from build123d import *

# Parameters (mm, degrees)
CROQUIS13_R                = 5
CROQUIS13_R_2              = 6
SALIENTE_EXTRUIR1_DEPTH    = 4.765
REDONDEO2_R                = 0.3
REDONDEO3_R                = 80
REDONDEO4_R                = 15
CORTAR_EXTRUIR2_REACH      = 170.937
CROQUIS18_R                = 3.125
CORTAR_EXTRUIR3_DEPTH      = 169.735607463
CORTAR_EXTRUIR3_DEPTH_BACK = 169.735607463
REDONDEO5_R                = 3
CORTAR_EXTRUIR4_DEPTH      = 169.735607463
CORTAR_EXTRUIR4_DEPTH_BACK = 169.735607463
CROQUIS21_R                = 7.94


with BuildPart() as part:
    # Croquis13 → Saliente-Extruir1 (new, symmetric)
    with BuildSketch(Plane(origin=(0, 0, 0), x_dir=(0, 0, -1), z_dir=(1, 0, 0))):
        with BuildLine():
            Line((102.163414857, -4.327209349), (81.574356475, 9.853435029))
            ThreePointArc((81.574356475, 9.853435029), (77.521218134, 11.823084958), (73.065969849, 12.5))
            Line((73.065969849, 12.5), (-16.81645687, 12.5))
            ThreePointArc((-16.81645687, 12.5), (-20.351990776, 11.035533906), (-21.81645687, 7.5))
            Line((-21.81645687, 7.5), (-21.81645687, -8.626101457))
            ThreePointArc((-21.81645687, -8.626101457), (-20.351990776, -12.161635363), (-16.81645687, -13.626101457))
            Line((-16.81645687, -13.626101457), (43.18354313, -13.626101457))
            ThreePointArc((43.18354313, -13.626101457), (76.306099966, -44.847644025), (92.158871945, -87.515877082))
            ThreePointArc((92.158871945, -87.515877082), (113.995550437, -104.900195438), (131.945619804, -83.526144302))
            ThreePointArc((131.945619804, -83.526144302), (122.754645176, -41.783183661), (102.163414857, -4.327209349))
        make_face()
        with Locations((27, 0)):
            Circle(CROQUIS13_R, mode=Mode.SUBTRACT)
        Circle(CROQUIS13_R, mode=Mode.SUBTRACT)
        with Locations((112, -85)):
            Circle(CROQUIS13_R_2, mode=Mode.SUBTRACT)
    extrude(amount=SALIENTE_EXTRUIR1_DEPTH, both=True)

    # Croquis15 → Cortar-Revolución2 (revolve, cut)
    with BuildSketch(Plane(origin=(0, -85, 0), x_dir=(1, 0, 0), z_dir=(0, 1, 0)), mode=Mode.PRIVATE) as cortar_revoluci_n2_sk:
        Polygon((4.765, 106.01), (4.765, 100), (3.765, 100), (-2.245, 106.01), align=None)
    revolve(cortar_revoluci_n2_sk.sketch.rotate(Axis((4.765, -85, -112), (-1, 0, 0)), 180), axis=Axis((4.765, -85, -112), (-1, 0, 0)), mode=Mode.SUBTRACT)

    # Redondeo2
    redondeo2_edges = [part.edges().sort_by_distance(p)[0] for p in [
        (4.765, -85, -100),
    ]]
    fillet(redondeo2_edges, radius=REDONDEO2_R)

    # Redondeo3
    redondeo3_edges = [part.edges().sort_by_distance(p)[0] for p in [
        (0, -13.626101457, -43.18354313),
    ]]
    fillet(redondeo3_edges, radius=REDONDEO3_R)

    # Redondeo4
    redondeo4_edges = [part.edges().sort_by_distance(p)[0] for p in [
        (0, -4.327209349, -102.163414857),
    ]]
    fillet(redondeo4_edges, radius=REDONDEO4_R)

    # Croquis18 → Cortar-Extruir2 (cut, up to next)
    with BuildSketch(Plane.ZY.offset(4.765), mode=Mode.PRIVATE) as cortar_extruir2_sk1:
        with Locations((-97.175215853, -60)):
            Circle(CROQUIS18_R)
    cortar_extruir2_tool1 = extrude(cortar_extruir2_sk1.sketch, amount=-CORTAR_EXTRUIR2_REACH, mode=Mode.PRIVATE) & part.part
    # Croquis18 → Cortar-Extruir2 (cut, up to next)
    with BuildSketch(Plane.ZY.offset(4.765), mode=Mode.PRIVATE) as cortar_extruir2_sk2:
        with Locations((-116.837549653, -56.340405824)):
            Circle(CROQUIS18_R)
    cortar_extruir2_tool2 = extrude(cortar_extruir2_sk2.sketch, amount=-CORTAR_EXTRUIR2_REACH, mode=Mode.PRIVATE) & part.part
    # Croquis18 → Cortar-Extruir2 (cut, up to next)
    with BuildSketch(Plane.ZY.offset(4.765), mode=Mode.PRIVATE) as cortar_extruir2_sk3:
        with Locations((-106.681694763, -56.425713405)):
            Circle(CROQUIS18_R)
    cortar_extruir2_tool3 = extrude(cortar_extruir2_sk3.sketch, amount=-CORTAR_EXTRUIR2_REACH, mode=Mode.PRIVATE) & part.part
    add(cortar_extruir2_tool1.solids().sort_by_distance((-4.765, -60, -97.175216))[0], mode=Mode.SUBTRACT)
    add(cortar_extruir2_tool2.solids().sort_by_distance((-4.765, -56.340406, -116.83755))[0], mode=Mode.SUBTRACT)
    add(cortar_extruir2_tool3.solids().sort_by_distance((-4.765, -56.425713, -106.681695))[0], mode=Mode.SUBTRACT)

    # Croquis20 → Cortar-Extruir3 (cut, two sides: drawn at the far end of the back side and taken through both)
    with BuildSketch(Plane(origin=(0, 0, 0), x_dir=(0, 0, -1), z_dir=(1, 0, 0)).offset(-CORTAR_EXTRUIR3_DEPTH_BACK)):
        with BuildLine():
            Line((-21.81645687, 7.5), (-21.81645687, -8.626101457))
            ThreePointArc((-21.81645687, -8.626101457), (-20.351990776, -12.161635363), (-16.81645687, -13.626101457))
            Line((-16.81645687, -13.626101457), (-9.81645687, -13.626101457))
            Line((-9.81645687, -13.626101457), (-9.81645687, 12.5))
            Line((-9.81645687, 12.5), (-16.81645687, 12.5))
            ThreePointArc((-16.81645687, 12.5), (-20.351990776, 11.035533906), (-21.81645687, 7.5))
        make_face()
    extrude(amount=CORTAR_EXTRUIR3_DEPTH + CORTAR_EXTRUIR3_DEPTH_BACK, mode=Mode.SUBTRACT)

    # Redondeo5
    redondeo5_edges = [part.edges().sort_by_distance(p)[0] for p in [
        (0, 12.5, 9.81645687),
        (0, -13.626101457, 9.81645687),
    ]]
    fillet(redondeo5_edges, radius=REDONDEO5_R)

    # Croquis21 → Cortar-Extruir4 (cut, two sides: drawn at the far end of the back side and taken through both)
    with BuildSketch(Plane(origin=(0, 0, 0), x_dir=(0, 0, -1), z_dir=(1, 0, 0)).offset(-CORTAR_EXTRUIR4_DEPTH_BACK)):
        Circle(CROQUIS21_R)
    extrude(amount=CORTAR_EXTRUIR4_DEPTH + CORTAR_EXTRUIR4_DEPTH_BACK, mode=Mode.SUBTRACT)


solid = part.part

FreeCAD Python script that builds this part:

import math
import FreeCAD as App
import Part
import Sketcher

V = App.Vector
Q = App.Units.Quantity


def edges_at(feature, points):
    """Names of the edges that pass closest to the given points."""
    edges = feature.Shape.Edges
    near = lambda p: min(range(len(edges)), key=lambda i: edges[i].distToShape(Part.Vertex(*p))[0])
    return sorted({f"Edge{near(p) + 1}" for p in points})

doc = App.newDocument("Part")
params = doc.addObject("Spreadsheet::Sheet", "Params")
for row, (alias, value) in enumerate([
    ("sketch1_diameter", "12 mm"),
    ("sketch1_diameter2", "10 mm"),
    ("sketch1_radius", "15 mm"),
    ("sketch1_radius2", "100 mm"),
    ("sketch1_radius3", "20 mm"),
    ("pad1_length", "9.53 mm"),
    ("sketch2_width", "1 mm"),
    ("sketch2_width2", "7.01 mm"),
    ("groove_angle", "360 deg"),
    ("fillet_radius", "0.3 mm"),
    ("fillet2_radius", "80 mm"),
    ("fillet3_radius", "15 mm"),
    ("sketch3_diameter", "6.25 mm"),
    ("sketch4_diameter", "6.25 mm"),
    ("sketch5_diameter", "6.25 mm"),
    ("sketch6_radius", "5 mm"),
    ("sketch6_height", "7 mm"),
    ("fillet4_radius", "3 mm"),
    ("sketch7_diameter", "15.88 mm"),
], start=1):
    params.set(f"A{row}", alias)
    params.set(f"B{row}", "=" + value)
    params.setAlias(f"B{row}", alias)

body = doc.addObject("PartDesign::Body", "Body")

sketch1 = doc.addObject("Sketcher::SketchObject", "Sketch")
body.addObject(sketch1)
sketch1.AttachmentSupport = (doc.YZ_Plane, [""])
sketch1.MapMode = "FlatFace"
sketch1.addGeometry(Part.LineSegment(V(-4, -102, 0), V(10, -82, 0)), False)
sketch1.addGeometry(Part.ArcOfCircle(Part.Circle(V(-3, -73, 0), V(0, 0, 1), 15), math.radians(-35), math.radians(0)), False)
sketch1.addGeometry(Part.LineSegment(V(12, -73, 0), V(12, 17, 0)), False)
sketch1.addGeometry(Part.ArcOfCircle(Part.Circle(V(8, 17, 0), V(0, 0, 1), 5), math.radians(0), math.radians(90)), False)
sketch1.addGeometry(Part.LineSegment(V(8, 22, 0), V(-9, 22, 0)), False)
sketch1.addGeometry(Part.ArcOfCircle(Part.Circle(V(-9, 17, 0), V(0, 0, 1), 5), math.radians(90), math.radians(180)), False)
sketch1.addGeometry(Part.LineSegment(V(-14, 17, 0), V(-14, -43, 0)), False)
sketch1.addGeometry(Part.ArcOfCircle(Part.Circle(V(-100, 7, 0), V(0, 0, 1), 100), math.radians(-83), math.radians(-30)), False)
sketch1.addGeometry(Part.ArcOfCircle(Part.Circle(V(-85, -112, 0), V(0, 0, 1), 20), math.radians(97), math.radians(274)), False)
sketch1.addGeometry(Part.ArcOfCircle(Part.Circle(V(-95, 18, 0), V(0, 0, 1), 150), math.radians(-86), math.radians(-53)), False)
sketch1.addGeometry(Part.Circle(V(-85, -112, 0), V(0, 0, 1), 6), False)
sketch1.addGeometry(Part.Circle(V(0, 0, 0), V(0, 0, 1), 5), False)
sketch1.addGeometry(Part.Circle(V(0, -27, 0), V(0, 0, 1), 5), False)
sketch1.addConstraint(Sketcher.Constraint("Tangent", 0, 2, 1, 1))
sketch1.addConstraint(Sketcher.Constraint("Tangent", 1, 2, 2, 1))
sketch1.addConstraint(Sketcher.Constraint("Tangent", 2, 2, 3, 1))
sketch1.addConstraint(Sketcher.Constraint("Tangent", 3, 2, 4, 1))
sketch1.addConstraint(Sketcher.Constraint("Tangent", 4, 2, 5, 1))
sketch1.addConstraint(Sketcher.Constraint("Tangent", 5, 2, 6, 1))
sketch1.addConstraint(Sketcher.Constraint("Coincident", 6, 2, 7, 2))
sketch1.addConstraint(Sketcher.Constraint("Tangent", 7, 1, 8, 1))
sketch1.addConstraint(Sketcher.Constraint("Tangent", 8, 2, 9, 1))
sketch1.addConstraint(Sketcher.Constraint("Coincident", 9, 2, 0, 1))
sketch1.addConstraint(Sketcher.Constraint("Vertical", 2))
sketch1.addConstraint(Sketcher.Constraint("Horizontal", 4))
sketch1.addConstraint(Sketcher.Constraint("Vertical", 6))
sketch1.addConstraint(Sketcher.Constraint("Coincident", 11, 3, -1, 1))
sketch1.addConstraint(Sketcher.Constraint("Coincident", 10, 3, 8, 3))
sketch1.addConstraint(Sketcher.Constraint("Equal", 3, 5))
sketch1.addConstraint(Sketcher.Constraint("Equal", 5, 11))
sketch1.addConstraint(Sketcher.Constraint("Equal", 11, 12))
sketch1.addConstraint(Sketcher.Constraint("PointOnObject", 12, 3, -2))
sketch1.addConstraint(Sketcher.Constraint("Diameter", 10, Q("12 mm")))
sketch1.addConstraint(Sketcher.Constraint("Diameter", 11, Q("10 mm")))
sketch1.addConstraint(Sketcher.Constraint("Radius", 1, Q("15 mm")))
sketch1.addConstraint(Sketcher.Constraint("Radius", 7, Q("100 mm")))
sketch1.addConstraint(Sketcher.Constraint("Radius", 8, Q("20 mm")))
sketch1.addConstraint(Sketcher.Constraint("Radius", 9, Q("150 mm")))
sketch1.addConstraint(Sketcher.Constraint("DistanceY", 6, 2, 6, 1, Q("60 mm")))
sketch1.addConstraint(Sketcher.Constraint("Distance", 0, Q("25 mm")))
sketch1.addConstraint(Sketcher.Constraint("DistanceX", 8, 3, -1, 1, Q("85 mm")))
sketch1.addConstraint(Sketcher.Constraint("DistanceY", 8, 3, -1, 1, Q("112 mm")))
sketch1.addConstraint(Sketcher.Constraint("DistanceY", 12, 3, -1, 1, Q("27 mm")))
sketch1.addConstraint(Sketcher.Constraint("DistanceX", 1, 3, -1, 1, Q("2.5 mm")))
sketch1.addConstraint(Sketcher.Constraint("DistanceX", 4, 2, 4, 1, Q("16.126101 mm")))
sketch1.addConstraint(Sketcher.Constraint("DistanceX", 7, 3, 9, 3, Q("5.5152 mm")))
sketch1.addConstraint(Sketcher.Constraint("DistanceY", 1, 3, 9, 3, Q("90.712499 mm")))
sketch1.addConstraint(Sketcher.Constraint("DistanceY", 2, 1, 2, 2, Q("89.882427 mm")))
sketch1.setExpression("Constraints[19]", "Params.sketch1_diameter")
sketch1.setExpression("Constraints[20]", "Params.sketch1_diameter2")
sketch1.setExpression("Constraints[21]", "Params.sketch1_radius")
sketch1.setExpression("Constraints[22]", "Params.sketch1_radius2")
sketch1.setExpression("Constraints[23]", "Params.sketch1_radius3")
pad1 = doc.addObject("PartDesign::Pad", "Pad")
body.addObject(pad1)
pad1.Profile = sketch1
pad1.setExpression("Length", "Params.pad1_length")
pad1.Midplane = True

sketch2 = doc.addObject("Sketcher::SketchObject", "Sketch001")
body.addObject(sketch2)
sketch2.AttachmentSupport = (doc.XZ_Plane, [""])
sketch2.MapMode = "FlatFace"
sketch2.AttachmentOffset = App.Placement(V(0, 0, 85), App.Rotation())
sketch2.addGeometry(Part.LineSegment(V(4.8, -100, 0), V(4.8, -106, 0)), False)
sketch2.addGeometry(Part.LineSegment(V(4.8, -106, 0), V(-2.2, -106, 0)), False)
sketch2.addGeometry(Part.LineSegment(V(-2.2, -106, 0), V(3.8, -100, 0)), False)
sketch2.addGeometry(Part.LineSegment(V(3.8, -100, 0), V(4.8, -100, 0)), False)
sketch2.addGeometry(Part.LineSegment(V(4.8, -112, 0), V(-2.2, -112, 0)), True)
sketch2.addConstraint(Sketcher.Constraint("Coincident", 0, 2, 1, 1))
sketch2.addConstraint(Sketcher.Constraint("Coincident", 1, 2, 2, 1))
sketch2.addConstraint(Sketcher.Constraint("Coincident", 2, 2, 3, 1))
sketch2.addConstraint(Sketcher.Constraint("Coincident", 3, 2, 0, 1))
sketch2.addConstraint(Sketcher.Constraint("Vertical", 0))
sketch2.addConstraint(Sketcher.Constraint("Horizontal", 1))
sketch2.addConstraint(Sketcher.Constraint("Horizontal", 3))
sketch2.addConstraint(Sketcher.Constraint("Horizontal", 4))
sketch2.addConstraint(Sketcher.Constraint("Vertical", 3, 2, 4, 1))
sketch2.addConstraint(Sketcher.Constraint("Vertical", 1, 2, 4, 2))
sketch2.addConstraint(Sketcher.Constraint("DistanceX", 3, 1, 3, 2, Q("1 mm")))
sketch2.addConstraint(Sketcher.Constraint("Angle", 2, Q("45 deg")))
sketch2.addConstraint(Sketcher.Constraint("DistanceY", 2, 2, -1, 1, Q("100 mm")))
sketch2.addConstraint(Sketcher.Constraint("DistanceY", 4, 1, -1, 1, Q("112 mm")))
sketch2.addConstraint(Sketcher.Constraint("DistanceX", 1, 2, 1, 1, Q("7.01 mm")))
sketch2.addConstraint(Sketcher.Constraint("DistanceX", -1, 1, 0, 2, Q("4.765 mm")))
sketch2.setExpression("Constraints[10]", "Params.sketch2_width")
sketch2.setExpression("Constraints[14]", "Params.sketch2_width2")
groove = doc.addObject("PartDesign::Groove", "Groove")
body.addObject(groove)
groove.Profile = sketch2
groove.ReferenceAxis = (sketch2, ["Axis0"])
groove.setExpression("Angle", "Params.groove_angle")
doc.recompute()

fillet = doc.addObject("PartDesign::Fillet", "Fillet")
body.addObject(fillet)
fillet.Base = (groove, edges_at(groove, [(4.765, -85, -100)]))
fillet.setExpression("Radius", "Params.fillet_radius")
doc.recompute()

fillet2 = doc.addObject("PartDesign::Fillet", "Fillet001")
body.addObject(fillet2)
fillet2.Base = (fillet, edges_at(fillet, [(0, -13.626, -43.184)]))
fillet2.setExpression("Radius", "Params.fillet2_radius")
doc.recompute()

fillet3 = doc.addObject("PartDesign::Fillet", "Fillet002")
body.addObject(fillet3)
fillet3.Base = (fillet2, edges_at(fillet2, [(0, -4.327, -102.163)]))
fillet3.setExpression("Radius", "Params.fillet3_radius")

sketch3 = doc.addObject("Sketcher::SketchObject", "Sketch002")
body.addObject(sketch3)
sketch3.AttachmentSupport = (doc.YZ_Plane, [""])
sketch3.MapMode = "FlatFace"
sketch3.AttachmentOffset = App.Placement(V(0, 0, -4.765), App.Rotation())
sketch3.addGeometry(Part.Circle(V(-60, -97.2, 0), V(0, 0, 1), 3.1), False)
sketch3.addConstraint(Sketcher.Constraint("Diameter", 0, Q("6.25 mm")))
sketch3.addConstraint(Sketcher.Constraint("DistanceX", 0, 3, -1, 1, Q("60 mm")))
sketch3.addConstraint(Sketcher.Constraint("DistanceY", 0, 3, -1, 1, Q("97.175216 mm")))
sketch3.setExpression("Constraints[0]", "Params.sketch3_diameter")
pocket1 = doc.addObject("PartDesign::Pocket", "Pocket")
body.addObject(pocket1)
pocket1.Profile = sketch3
pocket1.Type = "UpToFirst"
pocket1.Reversed = True

sketch4 = doc.addObject("Sketcher::SketchObject", "Sketch003")
body.addObject(sketch4)
sketch4.AttachmentSupport = (doc.YZ_Plane, [""])
sketch4.MapMode = "FlatFace"
sketch4.AttachmentOffset = App.Placement(V(0, 0, -4.765), App.Rotation())
sketch4.addGeometry(Part.Circle(V(-56.3, -116.8, 0), V(0, 0, 1), 3.1), False)
sketch4.addConstraint(Sketcher.Constraint("Diameter", 0, Q("6.25 mm")))
sketch4.addConstraint(Sketcher.Constraint("DistanceY", 0, 3, -1, 1, Q("116.83755 mm")))
sketch4.addConstraint(Sketcher.Constraint("DistanceX", 0, 3, -1, 1, Q("56.340406 mm")))
sketch4.setExpression("Constraints[0]", "Params.sketch4_diameter")
pocket2 = doc.addObject("PartDesign::Pocket", "Pocket001")
body.addObject(pocket2)
pocket2.Profile = sketch4
pocket2.Type = "UpToFirst"
pocket2.Reversed = True

sketch5 = doc.addObject("Sketcher::SketchObject", "Sketch004")
body.addObject(sketch5)
sketch5.AttachmentSupport = (doc.YZ_Plane, [""])
sketch5.MapMode = "FlatFace"
sketch5.AttachmentOffset = App.Placement(V(0, 0, -4.765), App.Rotation())
sketch5.addGeometry(Part.Circle(V(-56.4, -106.7, 0), V(0, 0, 1), 3.1), False)
sketch5.addConstraint(Sketcher.Constraint("Diameter", 0, Q("6.25 mm")))
sketch5.addConstraint(Sketcher.Constraint("DistanceX", 0, 3, -1, 1, Q("56.425713 mm")))
sketch5.addConstraint(Sketcher.Constraint("DistanceY", 0, 3, -1, 1, Q("106.681695 mm")))
sketch5.setExpression("Constraints[0]", "Params.sketch5_diameter")
pocket3 = doc.addObject("PartDesign::Pocket", "Pocket002")
body.addObject(pocket3)
pocket3.Profile = sketch5
pocket3.Type = "UpToFirst"
pocket3.Reversed = True

sketch6 = doc.addObject("Sketcher::SketchObject", "Sketch005")
body.addObject(sketch6)
sketch6.AttachmentSupport = (doc.YZ_Plane, [""])
sketch6.MapMode = "FlatFace"
sketch6.addGeometry(Part.LineSegment(V(8, 22, 0), V(-9, 22, 0)), False)
sketch6.addGeometry(Part.ArcOfCircle(Part.Circle(V(-9, 17, 0), V(0, 0, 1), 5), math.radians(90), math.radians(180)), False)
sketch6.addGeometry(Part.LineSegment(V(-14, 17, 0), V(-14, 10, 0)), False)
sketch6.addGeometry(Part.LineSegment(V(-14, 10, 0), V(12, 10, 0)), False)
sketch6.addGeometry(Part.LineSegment(V(12, 10, 0), V(12, 17, 0)), False)
sketch6.addGeometry(Part.ArcOfCircle(Part.Circle(V(8, 17, 0), V(0, 0, 1), 5), math.radians(0), math.radians(90)), False)
sketch6.addConstraint(Sketcher.Constraint("Tangent", 0, 2, 1, 1))
sketch6.addConstraint(Sketcher.Constraint("Tangent", 1, 2, 2, 1))
sketch6.addConstraint(Sketcher.Constraint("Coincident", 2, 2, 3, 1))
sketch6.addConstraint(Sketcher.Constraint("Coincident", 3, 2, 4, 1))
sketch6.addConstraint(Sketcher.Constraint("Tangent", 4, 2, 5, 1))
sketch6.addConstraint(Sketcher.Constraint("Tangent", 5, 2, 0, 1))
sketch6.addConstraint(Sketcher.Constraint("Horizontal", 0))
sketch6.addConstraint(Sketcher.Constraint("Vertical", 2))
sketch6.addConstraint(Sketcher.Constraint("Horizontal", 3))
sketch6.addConstraint(Sketcher.Constraint("Vertical", 4))
sketch6.addConstraint(Sketcher.Constraint("Equal", 1, 5))
sketch6.addConstraint(Sketcher.Constraint("Radius", 1, Q("5 mm")))
sketch6.addConstraint(Sketcher.Constraint("DistanceY", 2, 2, 2, 1, Q("7 mm")))
sketch6.addConstraint(Sketcher.Constraint("DistanceX", -1, 1, 5, 3, Q("7.5 mm")))
sketch6.addConstraint(Sketcher.Constraint("DistanceX", 0, 2, 0, 1, Q("16.126101 mm")))
sketch6.addConstraint(Sketcher.Constraint("DistanceY", -1, 1, 1, 3, Q("16.816457 mm")))
sketch6.setExpression("Constraints[11]", "Params.sketch6_radius")
sketch6.setExpression("Constraints[12]", "Params.sketch6_height")
pocket4 = doc.addObject("PartDesign::Pocket", "Pocket003")
body.addObject(pocket4)
pocket4.Profile = sketch6
pocket4.Type = "ThroughAll"
pocket4.Midplane = True
doc.recompute()

fillet4 = doc.addObject("PartDesign::Fillet", "Fillet003")
body.addObject(fillet4)
fillet4.Base = (pocket4, edges_at(pocket4, [(0, 12.5, 9.816), (0, -13.626, 9.816)]))
fillet4.setExpression("Radius", "Params.fillet4_radius")

sketch7 = doc.addObject("Sketcher::SketchObject", "Sketch006")
body.addObject(sketch7)
sketch7.AttachmentSupport = (doc.YZ_Plane, [""])
sketch7.MapMode = "FlatFace"
sketch7.addGeometry(Part.Circle(V(0, 0, 0), V(0, 0, 1), 8), False)
sketch7.addConstraint(Sketcher.Constraint("Coincident", 0, 3, -1, 1))
sketch7.addConstraint(Sketcher.Constraint("Diameter", 0, Q("15.88 mm")))
sketch7.setExpression("Constraints[1]", "Params.sketch7_diameter")
pocket5 = doc.addObject("PartDesign::Pocket", "Pocket004")
body.addObject(pocket5)
pocket5.Profile = sketch7
pocket5.Type = "ThroughAll"
pocket5.Midplane = True

doc.recompute()
